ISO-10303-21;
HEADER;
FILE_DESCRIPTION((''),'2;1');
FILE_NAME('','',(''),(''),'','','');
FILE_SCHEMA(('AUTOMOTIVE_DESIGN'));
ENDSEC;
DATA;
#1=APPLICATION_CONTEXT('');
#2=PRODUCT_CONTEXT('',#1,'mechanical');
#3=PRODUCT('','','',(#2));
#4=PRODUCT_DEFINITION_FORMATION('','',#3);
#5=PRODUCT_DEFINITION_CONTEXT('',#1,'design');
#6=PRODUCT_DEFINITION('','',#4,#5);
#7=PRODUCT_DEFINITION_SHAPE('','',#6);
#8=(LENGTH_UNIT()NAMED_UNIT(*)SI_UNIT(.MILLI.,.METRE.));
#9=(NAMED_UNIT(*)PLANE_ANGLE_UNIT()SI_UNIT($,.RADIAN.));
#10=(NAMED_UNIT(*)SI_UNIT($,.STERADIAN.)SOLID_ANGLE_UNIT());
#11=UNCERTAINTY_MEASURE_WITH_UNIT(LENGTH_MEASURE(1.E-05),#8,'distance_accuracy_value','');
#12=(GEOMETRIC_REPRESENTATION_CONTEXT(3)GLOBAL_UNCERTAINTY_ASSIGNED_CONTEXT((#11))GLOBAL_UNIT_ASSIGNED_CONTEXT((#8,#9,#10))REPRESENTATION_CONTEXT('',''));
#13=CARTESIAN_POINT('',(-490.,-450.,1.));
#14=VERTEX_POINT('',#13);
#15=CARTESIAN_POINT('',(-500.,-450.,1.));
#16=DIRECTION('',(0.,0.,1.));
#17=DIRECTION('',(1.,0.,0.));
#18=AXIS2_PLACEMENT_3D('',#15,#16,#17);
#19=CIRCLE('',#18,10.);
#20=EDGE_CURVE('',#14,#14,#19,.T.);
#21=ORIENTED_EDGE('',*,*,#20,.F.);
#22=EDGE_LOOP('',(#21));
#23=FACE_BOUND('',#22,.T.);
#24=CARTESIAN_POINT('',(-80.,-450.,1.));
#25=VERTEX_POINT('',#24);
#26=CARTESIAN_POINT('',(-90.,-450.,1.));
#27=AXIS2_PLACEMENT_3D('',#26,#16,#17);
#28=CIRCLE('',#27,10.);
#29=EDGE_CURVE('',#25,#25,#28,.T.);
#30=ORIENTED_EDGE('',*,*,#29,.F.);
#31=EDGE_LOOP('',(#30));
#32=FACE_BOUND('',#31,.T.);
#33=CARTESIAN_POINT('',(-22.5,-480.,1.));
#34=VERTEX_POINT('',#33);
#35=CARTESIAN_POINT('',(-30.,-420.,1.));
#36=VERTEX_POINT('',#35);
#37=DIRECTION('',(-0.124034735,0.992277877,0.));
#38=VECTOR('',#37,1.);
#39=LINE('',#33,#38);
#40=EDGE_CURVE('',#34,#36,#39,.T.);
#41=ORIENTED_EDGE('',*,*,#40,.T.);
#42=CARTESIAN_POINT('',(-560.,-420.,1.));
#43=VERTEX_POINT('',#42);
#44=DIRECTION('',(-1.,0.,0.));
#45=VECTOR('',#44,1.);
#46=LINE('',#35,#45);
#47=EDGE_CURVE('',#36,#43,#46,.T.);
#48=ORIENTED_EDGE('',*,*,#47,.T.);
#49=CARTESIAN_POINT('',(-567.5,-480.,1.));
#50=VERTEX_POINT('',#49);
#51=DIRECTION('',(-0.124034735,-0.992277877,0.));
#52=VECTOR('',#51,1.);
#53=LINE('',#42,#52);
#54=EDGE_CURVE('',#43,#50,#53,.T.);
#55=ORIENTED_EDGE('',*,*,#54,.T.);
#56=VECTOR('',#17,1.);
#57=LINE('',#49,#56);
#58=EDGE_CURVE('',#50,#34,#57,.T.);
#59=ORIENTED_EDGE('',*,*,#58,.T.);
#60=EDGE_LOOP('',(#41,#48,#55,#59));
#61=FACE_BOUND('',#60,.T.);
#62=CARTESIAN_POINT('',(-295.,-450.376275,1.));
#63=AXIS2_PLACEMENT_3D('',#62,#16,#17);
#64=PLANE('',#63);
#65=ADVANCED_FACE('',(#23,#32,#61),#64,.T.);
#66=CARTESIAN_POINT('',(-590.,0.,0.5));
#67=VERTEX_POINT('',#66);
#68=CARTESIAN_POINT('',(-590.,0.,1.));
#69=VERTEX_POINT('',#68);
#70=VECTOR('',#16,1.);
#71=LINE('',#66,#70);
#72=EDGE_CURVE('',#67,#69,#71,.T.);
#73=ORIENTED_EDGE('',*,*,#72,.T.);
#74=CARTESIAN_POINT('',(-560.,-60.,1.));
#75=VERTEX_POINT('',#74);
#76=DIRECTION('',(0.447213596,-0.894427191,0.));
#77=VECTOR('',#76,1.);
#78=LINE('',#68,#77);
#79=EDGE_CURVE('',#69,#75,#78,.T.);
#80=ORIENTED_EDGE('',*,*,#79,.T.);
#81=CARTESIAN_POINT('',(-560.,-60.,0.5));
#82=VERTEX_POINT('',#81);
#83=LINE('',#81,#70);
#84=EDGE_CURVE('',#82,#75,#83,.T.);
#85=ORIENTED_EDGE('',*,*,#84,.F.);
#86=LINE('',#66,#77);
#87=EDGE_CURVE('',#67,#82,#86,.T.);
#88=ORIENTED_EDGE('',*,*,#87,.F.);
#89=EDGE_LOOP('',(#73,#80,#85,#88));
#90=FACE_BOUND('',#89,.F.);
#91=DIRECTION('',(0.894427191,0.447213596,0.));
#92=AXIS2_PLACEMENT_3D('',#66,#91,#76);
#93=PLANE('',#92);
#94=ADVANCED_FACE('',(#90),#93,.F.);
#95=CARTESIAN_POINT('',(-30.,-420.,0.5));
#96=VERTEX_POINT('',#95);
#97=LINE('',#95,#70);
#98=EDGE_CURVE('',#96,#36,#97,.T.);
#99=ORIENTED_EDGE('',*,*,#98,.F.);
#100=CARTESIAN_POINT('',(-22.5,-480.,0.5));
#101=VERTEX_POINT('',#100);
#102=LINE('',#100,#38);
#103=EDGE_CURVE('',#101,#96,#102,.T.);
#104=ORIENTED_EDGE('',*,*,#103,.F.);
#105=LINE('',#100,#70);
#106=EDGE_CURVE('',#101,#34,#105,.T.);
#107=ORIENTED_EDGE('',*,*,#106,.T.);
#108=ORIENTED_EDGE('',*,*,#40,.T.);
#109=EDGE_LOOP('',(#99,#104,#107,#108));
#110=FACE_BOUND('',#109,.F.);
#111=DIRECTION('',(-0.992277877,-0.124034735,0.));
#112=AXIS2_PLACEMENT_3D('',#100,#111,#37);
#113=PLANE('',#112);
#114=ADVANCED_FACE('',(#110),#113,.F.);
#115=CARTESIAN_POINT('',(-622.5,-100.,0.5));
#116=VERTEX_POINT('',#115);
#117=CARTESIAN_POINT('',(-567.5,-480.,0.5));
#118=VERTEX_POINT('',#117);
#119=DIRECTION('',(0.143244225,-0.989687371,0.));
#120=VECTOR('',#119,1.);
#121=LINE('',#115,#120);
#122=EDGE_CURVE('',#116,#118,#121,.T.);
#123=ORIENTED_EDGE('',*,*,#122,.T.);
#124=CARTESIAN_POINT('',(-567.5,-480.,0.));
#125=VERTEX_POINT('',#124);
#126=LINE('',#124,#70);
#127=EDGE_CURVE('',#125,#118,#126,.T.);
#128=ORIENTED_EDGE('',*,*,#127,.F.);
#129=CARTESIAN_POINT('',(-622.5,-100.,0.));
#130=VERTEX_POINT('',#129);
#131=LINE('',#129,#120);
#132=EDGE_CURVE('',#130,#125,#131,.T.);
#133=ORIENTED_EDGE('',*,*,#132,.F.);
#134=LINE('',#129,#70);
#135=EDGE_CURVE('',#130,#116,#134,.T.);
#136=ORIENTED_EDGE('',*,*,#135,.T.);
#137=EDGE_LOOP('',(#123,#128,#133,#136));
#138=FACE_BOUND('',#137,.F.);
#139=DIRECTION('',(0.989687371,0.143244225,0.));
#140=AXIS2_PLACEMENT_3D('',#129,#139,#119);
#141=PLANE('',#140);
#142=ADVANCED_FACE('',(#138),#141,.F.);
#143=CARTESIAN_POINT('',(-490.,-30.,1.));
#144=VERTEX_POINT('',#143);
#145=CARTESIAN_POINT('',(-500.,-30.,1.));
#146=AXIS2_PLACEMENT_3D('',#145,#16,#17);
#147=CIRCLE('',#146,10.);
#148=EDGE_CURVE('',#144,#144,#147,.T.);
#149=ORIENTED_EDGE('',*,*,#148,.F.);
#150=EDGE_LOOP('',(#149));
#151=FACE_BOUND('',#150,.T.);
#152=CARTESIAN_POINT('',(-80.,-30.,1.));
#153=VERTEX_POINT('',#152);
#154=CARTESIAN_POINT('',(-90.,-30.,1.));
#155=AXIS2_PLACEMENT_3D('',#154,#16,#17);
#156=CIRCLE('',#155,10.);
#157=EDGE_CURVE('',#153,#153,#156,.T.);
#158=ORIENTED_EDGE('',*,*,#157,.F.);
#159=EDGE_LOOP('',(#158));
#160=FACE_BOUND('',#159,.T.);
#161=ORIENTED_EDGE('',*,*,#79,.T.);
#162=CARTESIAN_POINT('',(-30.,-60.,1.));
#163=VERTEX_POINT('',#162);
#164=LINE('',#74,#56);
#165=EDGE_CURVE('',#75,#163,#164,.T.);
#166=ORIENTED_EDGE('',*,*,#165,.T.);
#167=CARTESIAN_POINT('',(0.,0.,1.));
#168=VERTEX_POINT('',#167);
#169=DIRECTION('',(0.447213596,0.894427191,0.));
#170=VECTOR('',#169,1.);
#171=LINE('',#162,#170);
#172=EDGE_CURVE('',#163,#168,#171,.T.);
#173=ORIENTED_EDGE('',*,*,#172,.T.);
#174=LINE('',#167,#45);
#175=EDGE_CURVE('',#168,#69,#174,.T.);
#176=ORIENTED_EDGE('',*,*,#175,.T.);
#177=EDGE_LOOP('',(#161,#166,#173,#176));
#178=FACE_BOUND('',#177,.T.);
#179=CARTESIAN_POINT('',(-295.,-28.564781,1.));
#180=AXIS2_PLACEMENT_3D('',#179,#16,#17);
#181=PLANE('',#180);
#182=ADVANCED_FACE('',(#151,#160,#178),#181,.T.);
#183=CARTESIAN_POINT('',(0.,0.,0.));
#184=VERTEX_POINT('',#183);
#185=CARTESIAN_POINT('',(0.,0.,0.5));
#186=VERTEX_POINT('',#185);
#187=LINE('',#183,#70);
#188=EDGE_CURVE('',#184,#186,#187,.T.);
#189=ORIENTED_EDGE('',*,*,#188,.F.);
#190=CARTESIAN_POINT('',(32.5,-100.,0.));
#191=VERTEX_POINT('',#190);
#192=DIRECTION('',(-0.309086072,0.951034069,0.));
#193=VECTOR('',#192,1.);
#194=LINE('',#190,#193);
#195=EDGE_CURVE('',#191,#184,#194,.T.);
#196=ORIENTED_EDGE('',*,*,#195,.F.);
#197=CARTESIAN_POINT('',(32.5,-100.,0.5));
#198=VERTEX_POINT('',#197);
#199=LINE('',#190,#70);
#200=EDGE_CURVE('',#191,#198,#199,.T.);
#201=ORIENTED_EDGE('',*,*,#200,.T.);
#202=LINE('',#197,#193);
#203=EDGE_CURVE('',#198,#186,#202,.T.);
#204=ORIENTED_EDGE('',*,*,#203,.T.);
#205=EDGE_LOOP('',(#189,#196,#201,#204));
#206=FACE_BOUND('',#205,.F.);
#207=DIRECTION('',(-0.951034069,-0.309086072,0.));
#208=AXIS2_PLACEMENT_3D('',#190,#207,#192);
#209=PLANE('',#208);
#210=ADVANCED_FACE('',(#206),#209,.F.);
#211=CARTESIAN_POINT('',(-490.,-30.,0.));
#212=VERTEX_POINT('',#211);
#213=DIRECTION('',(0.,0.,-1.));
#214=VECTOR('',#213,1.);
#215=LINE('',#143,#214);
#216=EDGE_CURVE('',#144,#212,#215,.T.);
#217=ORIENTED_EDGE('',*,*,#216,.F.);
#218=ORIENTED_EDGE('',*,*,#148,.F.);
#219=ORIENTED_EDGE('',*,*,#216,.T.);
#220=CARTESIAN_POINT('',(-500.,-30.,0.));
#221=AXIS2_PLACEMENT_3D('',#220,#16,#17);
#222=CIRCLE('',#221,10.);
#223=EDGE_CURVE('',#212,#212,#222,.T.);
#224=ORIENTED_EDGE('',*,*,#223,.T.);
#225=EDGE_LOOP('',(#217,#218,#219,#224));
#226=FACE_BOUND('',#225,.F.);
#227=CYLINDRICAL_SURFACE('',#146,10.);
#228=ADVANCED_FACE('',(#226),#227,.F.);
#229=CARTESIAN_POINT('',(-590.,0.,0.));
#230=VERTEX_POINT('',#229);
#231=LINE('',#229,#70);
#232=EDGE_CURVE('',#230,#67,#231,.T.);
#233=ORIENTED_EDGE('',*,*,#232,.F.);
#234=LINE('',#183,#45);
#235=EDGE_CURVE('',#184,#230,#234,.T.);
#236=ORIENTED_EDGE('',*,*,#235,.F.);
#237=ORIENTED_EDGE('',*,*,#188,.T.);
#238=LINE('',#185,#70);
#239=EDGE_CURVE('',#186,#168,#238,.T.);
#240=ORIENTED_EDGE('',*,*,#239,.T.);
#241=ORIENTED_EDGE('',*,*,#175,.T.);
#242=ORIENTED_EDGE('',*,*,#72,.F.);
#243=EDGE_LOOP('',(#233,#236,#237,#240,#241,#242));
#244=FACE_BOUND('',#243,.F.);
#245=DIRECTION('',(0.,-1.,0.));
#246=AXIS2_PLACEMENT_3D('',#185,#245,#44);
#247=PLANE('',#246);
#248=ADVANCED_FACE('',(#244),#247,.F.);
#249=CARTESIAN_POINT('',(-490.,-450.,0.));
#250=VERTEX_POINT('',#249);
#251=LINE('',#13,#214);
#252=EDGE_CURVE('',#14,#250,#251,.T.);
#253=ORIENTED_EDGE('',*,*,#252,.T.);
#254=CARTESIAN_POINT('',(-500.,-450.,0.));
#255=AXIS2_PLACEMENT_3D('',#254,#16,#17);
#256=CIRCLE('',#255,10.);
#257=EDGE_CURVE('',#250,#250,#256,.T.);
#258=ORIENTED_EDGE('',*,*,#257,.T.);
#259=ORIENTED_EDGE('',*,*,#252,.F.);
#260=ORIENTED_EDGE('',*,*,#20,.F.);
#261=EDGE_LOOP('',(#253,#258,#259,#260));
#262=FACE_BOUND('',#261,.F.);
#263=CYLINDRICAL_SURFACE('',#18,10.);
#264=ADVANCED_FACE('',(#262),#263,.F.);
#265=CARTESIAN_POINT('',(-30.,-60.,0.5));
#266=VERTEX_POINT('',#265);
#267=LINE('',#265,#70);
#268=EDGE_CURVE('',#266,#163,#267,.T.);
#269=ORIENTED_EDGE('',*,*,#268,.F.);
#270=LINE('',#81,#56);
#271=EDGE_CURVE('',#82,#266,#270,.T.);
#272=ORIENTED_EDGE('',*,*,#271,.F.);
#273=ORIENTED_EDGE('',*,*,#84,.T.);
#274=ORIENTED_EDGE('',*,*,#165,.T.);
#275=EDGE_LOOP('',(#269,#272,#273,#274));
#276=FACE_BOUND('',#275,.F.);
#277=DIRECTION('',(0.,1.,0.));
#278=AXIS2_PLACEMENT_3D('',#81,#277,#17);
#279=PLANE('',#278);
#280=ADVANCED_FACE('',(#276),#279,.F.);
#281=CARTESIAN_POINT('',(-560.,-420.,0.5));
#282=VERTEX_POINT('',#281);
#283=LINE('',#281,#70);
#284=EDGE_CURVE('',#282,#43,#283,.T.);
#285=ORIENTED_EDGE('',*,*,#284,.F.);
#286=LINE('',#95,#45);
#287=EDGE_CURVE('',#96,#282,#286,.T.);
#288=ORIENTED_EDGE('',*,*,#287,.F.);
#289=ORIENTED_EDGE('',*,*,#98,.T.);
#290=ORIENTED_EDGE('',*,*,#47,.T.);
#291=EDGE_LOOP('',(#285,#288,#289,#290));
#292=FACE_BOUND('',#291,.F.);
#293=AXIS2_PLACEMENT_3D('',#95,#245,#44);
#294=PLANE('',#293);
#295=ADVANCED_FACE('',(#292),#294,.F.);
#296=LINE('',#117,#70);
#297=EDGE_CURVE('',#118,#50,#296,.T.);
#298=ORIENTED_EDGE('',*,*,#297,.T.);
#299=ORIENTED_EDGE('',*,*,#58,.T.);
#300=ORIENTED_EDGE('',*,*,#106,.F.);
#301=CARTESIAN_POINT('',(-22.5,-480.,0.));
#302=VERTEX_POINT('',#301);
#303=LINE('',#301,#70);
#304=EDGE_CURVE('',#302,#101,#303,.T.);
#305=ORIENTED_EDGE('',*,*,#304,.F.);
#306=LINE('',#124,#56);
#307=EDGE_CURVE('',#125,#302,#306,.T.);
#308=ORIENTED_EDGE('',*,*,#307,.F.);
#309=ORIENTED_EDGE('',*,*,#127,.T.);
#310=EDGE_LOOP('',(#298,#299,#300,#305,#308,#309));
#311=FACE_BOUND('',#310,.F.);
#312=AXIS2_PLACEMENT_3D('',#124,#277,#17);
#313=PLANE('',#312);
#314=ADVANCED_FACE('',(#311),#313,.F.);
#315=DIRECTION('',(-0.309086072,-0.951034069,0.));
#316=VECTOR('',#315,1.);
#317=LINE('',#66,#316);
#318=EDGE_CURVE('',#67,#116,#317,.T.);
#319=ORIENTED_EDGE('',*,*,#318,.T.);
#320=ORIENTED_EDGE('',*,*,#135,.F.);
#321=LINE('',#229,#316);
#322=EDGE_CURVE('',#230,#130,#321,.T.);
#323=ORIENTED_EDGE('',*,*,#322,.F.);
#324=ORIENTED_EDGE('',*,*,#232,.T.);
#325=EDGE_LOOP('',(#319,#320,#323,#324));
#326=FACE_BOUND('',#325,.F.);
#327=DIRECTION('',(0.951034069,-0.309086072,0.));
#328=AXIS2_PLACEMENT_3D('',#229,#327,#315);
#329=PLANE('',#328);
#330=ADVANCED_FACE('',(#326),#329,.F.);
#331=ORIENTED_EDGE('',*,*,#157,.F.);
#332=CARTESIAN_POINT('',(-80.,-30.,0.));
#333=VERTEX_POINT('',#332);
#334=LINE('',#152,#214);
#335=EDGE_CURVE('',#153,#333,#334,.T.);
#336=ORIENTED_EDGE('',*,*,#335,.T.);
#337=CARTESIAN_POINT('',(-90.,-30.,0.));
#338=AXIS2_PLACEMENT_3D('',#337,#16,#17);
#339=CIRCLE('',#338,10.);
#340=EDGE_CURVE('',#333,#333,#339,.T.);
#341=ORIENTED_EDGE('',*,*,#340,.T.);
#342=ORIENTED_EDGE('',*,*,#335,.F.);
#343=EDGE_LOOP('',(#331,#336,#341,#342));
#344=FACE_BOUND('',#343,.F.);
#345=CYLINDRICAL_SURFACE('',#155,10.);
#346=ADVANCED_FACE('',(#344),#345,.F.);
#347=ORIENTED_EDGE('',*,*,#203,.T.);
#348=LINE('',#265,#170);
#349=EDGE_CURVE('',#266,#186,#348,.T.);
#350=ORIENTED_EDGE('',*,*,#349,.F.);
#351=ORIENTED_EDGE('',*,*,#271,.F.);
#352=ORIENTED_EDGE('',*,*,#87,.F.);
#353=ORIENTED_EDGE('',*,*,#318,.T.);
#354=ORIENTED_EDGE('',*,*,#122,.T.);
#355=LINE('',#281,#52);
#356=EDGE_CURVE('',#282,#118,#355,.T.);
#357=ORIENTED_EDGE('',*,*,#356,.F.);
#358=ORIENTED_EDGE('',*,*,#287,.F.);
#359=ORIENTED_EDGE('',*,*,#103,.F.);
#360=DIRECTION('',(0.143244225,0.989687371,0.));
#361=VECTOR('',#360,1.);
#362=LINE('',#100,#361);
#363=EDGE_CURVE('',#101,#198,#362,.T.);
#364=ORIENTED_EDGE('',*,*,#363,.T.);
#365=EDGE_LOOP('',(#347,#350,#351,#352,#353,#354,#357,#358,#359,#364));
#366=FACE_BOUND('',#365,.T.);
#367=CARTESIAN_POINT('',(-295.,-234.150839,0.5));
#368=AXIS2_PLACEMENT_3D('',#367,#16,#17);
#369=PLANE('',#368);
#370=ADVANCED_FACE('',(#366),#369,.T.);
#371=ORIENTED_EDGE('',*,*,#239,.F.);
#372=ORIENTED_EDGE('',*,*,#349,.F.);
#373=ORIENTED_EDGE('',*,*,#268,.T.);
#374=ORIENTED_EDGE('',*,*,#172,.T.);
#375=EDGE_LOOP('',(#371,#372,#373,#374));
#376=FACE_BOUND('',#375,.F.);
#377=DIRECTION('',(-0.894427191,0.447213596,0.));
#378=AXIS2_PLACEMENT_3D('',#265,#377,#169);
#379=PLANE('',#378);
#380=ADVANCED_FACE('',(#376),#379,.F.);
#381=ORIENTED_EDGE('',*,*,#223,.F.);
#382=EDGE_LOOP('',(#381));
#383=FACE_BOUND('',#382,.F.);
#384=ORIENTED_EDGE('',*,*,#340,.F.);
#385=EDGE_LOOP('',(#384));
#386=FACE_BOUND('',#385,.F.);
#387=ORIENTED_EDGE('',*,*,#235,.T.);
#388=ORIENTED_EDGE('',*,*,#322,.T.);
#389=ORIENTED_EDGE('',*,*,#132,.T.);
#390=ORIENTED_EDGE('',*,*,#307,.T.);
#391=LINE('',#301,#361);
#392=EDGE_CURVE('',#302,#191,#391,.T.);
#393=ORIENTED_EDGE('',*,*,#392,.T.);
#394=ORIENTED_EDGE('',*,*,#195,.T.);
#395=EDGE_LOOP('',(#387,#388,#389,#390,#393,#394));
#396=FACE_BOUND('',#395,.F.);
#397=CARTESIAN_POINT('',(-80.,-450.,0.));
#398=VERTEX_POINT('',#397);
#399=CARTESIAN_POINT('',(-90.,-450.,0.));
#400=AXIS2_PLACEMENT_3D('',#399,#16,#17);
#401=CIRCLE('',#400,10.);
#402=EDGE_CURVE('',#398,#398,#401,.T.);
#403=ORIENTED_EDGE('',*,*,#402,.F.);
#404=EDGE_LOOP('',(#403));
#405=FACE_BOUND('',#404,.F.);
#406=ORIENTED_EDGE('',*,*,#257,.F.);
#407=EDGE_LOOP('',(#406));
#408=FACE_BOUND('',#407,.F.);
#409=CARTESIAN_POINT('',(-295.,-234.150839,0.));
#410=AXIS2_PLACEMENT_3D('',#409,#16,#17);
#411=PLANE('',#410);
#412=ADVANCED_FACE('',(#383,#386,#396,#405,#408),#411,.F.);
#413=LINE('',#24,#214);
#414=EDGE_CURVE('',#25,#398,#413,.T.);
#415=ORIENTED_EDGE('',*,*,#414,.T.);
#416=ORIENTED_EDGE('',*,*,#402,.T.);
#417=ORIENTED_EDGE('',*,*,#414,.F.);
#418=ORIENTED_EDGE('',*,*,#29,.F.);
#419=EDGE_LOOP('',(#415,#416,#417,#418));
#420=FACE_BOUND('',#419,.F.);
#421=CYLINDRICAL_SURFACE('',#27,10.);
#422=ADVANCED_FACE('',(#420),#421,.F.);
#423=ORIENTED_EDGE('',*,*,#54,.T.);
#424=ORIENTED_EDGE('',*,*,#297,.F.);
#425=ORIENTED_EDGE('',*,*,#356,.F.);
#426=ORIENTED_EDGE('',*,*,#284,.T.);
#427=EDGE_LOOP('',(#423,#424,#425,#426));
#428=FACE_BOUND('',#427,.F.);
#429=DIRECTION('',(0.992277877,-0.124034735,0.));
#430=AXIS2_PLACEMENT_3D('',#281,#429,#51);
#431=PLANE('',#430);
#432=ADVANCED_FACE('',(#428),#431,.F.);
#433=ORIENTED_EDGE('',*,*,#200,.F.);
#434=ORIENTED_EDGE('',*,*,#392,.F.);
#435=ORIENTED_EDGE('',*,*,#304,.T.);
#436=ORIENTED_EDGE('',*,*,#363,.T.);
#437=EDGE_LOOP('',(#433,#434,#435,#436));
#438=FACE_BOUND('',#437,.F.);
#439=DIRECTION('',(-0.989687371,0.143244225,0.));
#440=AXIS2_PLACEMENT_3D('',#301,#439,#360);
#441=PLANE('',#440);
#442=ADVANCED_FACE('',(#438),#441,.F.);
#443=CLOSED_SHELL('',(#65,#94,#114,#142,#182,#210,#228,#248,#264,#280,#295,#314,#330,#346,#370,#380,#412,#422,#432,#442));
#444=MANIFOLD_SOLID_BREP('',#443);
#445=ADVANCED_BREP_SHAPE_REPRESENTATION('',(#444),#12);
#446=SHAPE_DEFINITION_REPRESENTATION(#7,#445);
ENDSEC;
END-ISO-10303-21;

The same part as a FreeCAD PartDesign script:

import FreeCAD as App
import Part
import Sketcher

V = App.Vector

doc = App.newDocument("Part")
body = doc.addObject("PartDesign::Body", "Body")

sketch1 = doc.addObject("Sketcher::SketchObject", "Sketch")
body.addObject(sketch1)
sketch1.AttachmentSupport = (doc.XY_Plane, [""])
sketch1.MapMode = "FlatFace"
sketch1.addGeometry([
    Part.LineSegment(V(0, 0, 0), V(-590, 0, 0)),
    Part.LineSegment(V(-590, 0, 0), V(-622, -100, 0)),
    Part.LineSegment(V(-622, -100, 0), V(-568, -480, 0)),
    Part.LineSegment(V(-568, -480, 0), V(-22, -480, 0)),
    Part.LineSegment(V(-22, -480, 0), V(32, -100, 0)),
    Part.LineSegment(V(32, -100, 0), V(0, 0, 0)),
], False)
sketch1.addConstraint([
    Sketcher.Constraint("Coincident", 0, 2, 1, 1),
    Sketcher.Constraint("Coincident", 1, 2, 2, 1),
    Sketcher.Constraint("Coincident", 2, 2, 3, 1),
    Sketcher.Constraint("Coincident", 3, 2, 4, 1),
    Sketcher.Constraint("Coincident", 4, 2, 5, 1),
    Sketcher.Constraint("Coincident", 5, 2, 0, 1),
    Sketcher.Constraint("Horizontal", 0),
    Sketcher.Constraint("Horizontal", 3),
    Sketcher.Constraint("Coincident", 5, 2, -1, 1),
    Sketcher.Constraint("Horizontal", 1, 2, 4, 2),
    Sketcher.Constraint("Equal", 2, 4),
    Sketcher.Constraint("Equal", 1, 5),
    Sketcher.Constraint("DistanceX", 0, 2, 0, 1, 590.0),
    Sketcher.Constraint("DistanceX", 3, 1, 3, 2, 545.0),
    Sketcher.Constraint("DistanceY", 1, 2, -1, 1, 100.0),
    Sketcher.Constraint("DistanceY", 2, 2, -1, 1, 480.0),
    Sketcher.Constraint("DistanceX", 1, 2, 2, 2, 55.0),
])
pad1 = doc.addObject("PartDesign::Pad", "Pad")
body.addObject(pad1)
pad1.Profile = sketch1
pad1.Length = 0.5

sketch2 = doc.addObject("Sketcher::SketchObject", "Sketch001")
body.addObject(sketch2)
sketch2.AttachmentSupport = (doc.XY_Plane, [""])
sketch2.MapMode = "FlatFace"
sketch2.AttachmentOffset = App.Placement(V(0, 0, 0.5), App.Rotation())
sketch2.addGeometry([
    Part.LineSegment(V(0, 0, 0), V(-590, 0, 0)),
    Part.LineSegment(V(-590, 0, 0), V(-560, -60, 0)),
    Part.LineSegment(V(-560, -60, 0), V(-30, -60, 0)),
    Part.LineSegment(V(-30, -60, 0), V(0, 0, 0)),
    Part.LineSegment(V(-568, -480, 0), V(-22, -480, 0)),
    Part.LineSegment(V(-22, -480, 0), V(-30, -420, 0)),
    Part.LineSegment(V(-30, -420, 0), V(-560, -420, 0)),
    Part.LineSegment(V(-560, -420, 0), V(-568, -480, 0)),
], False)
sketch2.addConstraint([
    Sketcher.Constraint("Coincident", 0, 2, 1, 1),
    Sketcher.Constraint("Coincident", 1, 2, 2, 1),
    Sketcher.Constraint("Coincident", 2, 2, 3, 1),
    Sketcher.Constraint("Coincident", 3, 2, 0, 1),
    Sketcher.Constraint("Coincident", 4, 2, 5, 1),
    Sketcher.Constraint("Coincident", 5, 2, 6, 1),
    Sketcher.Constraint("Coincident", 6, 2, 7, 1),
    Sketcher.Constraint("Coincident", 7, 2, 4, 1),
    Sketcher.Constraint("Horizontal", 0),
    Sketcher.Constraint("Horizontal", 2),
    Sketcher.Constraint("Horizontal", 4),
    Sketcher.Constraint("Horizontal", 6),
    Sketcher.Constraint("Coincident", 3, 2, -1, 1),
    Sketcher.Constraint("Vertical", 2, 2, 5, 2),
    Sketcher.Constraint("Vertical", 1, 2, 6, 2),
    Sketcher.Constraint("Equal", 1, 3),
    Sketcher.Constraint("Equal", 5, 7),
    Sketcher.Constraint("DistanceX", 0, 2, 0, 1, 590.0),
    Sketcher.Constraint("DistanceX", 2, 1, 2, 2, 530.0),
    Sketcher.Constraint("DistanceX", 4, 1, 4, 2, 545.0),
    Sketcher.Constraint("DistanceY", 1, 2, -1, 1, 60.0),
    Sketcher.Constraint("DistanceY", 4, 2, -1, 1, 480.0),
    Sketcher.Constraint("DistanceY", 5, 2, -1, 1, 420.0),
])
pad2 = doc.addObject("PartDesign::Pad", "Pad001")
body.addObject(pad2)
pad2.Profile = sketch2
pad2.Length = 0.5

sketch3 = doc.addObject("Sketcher::SketchObject", "Sketch002")
body.addObject(sketch3)
sketch3.AttachmentSupport = (doc.XY_Plane, [""])
sketch3.MapMode = "FlatFace"
sketch3.AttachmentOffset = App.Placement(V(0, 0, 1), App.Rotation())
sketch3.addGeometry([
    Part.Circle(V(-500, -30, 0), V(0, 0, 1), 10),
    Part.Circle(V(-500, -450, 0), V(0, 0, 1), 10),
    Part.Circle(V(-90, -30, 0), V(0, 0, 1), 10),
    Part.Circle(V(-90, -450, 0), V(0, 0, 1), 10),
], False)
sketch3.addConstraint([
    Sketcher.Constraint("Equal", 0, 1),
    Sketcher.Constraint("Equal", 1, 2),
    Sketcher.Constraint("Equal", 2, 3),
    Sketcher.Constraint("Horizontal", 0, 3, 2, 3),
    Sketcher.Constraint("Horizontal", 1, 3, 3, 3),
    Sketcher.Constraint("Vertical", 0, 3, 1, 3),
    Sketcher.Constraint("Vertical", 2, 3, 3, 3),
    Sketcher.Constraint("Diameter", 0, 20.0),
    Sketcher.Constraint("DistanceX", 0, 3, -1, 1, 500.0),
    Sketcher.Constraint("DistanceY", 0, 3, -1, 1, 30.0),
    Sketcher.Constraint("DistanceY", 1, 3, -1, 1, 450.0),
    Sketcher.Constraint("DistanceX", 2, 3, -1, 1, 90.0),
])
pocket1 = doc.addObject("PartDesign::Pocket", "Pocket")
body.addObject(pocket1)
pocket1.Profile = sketch3
pocket1.Type = "ThroughAll"

doc.recompute()
